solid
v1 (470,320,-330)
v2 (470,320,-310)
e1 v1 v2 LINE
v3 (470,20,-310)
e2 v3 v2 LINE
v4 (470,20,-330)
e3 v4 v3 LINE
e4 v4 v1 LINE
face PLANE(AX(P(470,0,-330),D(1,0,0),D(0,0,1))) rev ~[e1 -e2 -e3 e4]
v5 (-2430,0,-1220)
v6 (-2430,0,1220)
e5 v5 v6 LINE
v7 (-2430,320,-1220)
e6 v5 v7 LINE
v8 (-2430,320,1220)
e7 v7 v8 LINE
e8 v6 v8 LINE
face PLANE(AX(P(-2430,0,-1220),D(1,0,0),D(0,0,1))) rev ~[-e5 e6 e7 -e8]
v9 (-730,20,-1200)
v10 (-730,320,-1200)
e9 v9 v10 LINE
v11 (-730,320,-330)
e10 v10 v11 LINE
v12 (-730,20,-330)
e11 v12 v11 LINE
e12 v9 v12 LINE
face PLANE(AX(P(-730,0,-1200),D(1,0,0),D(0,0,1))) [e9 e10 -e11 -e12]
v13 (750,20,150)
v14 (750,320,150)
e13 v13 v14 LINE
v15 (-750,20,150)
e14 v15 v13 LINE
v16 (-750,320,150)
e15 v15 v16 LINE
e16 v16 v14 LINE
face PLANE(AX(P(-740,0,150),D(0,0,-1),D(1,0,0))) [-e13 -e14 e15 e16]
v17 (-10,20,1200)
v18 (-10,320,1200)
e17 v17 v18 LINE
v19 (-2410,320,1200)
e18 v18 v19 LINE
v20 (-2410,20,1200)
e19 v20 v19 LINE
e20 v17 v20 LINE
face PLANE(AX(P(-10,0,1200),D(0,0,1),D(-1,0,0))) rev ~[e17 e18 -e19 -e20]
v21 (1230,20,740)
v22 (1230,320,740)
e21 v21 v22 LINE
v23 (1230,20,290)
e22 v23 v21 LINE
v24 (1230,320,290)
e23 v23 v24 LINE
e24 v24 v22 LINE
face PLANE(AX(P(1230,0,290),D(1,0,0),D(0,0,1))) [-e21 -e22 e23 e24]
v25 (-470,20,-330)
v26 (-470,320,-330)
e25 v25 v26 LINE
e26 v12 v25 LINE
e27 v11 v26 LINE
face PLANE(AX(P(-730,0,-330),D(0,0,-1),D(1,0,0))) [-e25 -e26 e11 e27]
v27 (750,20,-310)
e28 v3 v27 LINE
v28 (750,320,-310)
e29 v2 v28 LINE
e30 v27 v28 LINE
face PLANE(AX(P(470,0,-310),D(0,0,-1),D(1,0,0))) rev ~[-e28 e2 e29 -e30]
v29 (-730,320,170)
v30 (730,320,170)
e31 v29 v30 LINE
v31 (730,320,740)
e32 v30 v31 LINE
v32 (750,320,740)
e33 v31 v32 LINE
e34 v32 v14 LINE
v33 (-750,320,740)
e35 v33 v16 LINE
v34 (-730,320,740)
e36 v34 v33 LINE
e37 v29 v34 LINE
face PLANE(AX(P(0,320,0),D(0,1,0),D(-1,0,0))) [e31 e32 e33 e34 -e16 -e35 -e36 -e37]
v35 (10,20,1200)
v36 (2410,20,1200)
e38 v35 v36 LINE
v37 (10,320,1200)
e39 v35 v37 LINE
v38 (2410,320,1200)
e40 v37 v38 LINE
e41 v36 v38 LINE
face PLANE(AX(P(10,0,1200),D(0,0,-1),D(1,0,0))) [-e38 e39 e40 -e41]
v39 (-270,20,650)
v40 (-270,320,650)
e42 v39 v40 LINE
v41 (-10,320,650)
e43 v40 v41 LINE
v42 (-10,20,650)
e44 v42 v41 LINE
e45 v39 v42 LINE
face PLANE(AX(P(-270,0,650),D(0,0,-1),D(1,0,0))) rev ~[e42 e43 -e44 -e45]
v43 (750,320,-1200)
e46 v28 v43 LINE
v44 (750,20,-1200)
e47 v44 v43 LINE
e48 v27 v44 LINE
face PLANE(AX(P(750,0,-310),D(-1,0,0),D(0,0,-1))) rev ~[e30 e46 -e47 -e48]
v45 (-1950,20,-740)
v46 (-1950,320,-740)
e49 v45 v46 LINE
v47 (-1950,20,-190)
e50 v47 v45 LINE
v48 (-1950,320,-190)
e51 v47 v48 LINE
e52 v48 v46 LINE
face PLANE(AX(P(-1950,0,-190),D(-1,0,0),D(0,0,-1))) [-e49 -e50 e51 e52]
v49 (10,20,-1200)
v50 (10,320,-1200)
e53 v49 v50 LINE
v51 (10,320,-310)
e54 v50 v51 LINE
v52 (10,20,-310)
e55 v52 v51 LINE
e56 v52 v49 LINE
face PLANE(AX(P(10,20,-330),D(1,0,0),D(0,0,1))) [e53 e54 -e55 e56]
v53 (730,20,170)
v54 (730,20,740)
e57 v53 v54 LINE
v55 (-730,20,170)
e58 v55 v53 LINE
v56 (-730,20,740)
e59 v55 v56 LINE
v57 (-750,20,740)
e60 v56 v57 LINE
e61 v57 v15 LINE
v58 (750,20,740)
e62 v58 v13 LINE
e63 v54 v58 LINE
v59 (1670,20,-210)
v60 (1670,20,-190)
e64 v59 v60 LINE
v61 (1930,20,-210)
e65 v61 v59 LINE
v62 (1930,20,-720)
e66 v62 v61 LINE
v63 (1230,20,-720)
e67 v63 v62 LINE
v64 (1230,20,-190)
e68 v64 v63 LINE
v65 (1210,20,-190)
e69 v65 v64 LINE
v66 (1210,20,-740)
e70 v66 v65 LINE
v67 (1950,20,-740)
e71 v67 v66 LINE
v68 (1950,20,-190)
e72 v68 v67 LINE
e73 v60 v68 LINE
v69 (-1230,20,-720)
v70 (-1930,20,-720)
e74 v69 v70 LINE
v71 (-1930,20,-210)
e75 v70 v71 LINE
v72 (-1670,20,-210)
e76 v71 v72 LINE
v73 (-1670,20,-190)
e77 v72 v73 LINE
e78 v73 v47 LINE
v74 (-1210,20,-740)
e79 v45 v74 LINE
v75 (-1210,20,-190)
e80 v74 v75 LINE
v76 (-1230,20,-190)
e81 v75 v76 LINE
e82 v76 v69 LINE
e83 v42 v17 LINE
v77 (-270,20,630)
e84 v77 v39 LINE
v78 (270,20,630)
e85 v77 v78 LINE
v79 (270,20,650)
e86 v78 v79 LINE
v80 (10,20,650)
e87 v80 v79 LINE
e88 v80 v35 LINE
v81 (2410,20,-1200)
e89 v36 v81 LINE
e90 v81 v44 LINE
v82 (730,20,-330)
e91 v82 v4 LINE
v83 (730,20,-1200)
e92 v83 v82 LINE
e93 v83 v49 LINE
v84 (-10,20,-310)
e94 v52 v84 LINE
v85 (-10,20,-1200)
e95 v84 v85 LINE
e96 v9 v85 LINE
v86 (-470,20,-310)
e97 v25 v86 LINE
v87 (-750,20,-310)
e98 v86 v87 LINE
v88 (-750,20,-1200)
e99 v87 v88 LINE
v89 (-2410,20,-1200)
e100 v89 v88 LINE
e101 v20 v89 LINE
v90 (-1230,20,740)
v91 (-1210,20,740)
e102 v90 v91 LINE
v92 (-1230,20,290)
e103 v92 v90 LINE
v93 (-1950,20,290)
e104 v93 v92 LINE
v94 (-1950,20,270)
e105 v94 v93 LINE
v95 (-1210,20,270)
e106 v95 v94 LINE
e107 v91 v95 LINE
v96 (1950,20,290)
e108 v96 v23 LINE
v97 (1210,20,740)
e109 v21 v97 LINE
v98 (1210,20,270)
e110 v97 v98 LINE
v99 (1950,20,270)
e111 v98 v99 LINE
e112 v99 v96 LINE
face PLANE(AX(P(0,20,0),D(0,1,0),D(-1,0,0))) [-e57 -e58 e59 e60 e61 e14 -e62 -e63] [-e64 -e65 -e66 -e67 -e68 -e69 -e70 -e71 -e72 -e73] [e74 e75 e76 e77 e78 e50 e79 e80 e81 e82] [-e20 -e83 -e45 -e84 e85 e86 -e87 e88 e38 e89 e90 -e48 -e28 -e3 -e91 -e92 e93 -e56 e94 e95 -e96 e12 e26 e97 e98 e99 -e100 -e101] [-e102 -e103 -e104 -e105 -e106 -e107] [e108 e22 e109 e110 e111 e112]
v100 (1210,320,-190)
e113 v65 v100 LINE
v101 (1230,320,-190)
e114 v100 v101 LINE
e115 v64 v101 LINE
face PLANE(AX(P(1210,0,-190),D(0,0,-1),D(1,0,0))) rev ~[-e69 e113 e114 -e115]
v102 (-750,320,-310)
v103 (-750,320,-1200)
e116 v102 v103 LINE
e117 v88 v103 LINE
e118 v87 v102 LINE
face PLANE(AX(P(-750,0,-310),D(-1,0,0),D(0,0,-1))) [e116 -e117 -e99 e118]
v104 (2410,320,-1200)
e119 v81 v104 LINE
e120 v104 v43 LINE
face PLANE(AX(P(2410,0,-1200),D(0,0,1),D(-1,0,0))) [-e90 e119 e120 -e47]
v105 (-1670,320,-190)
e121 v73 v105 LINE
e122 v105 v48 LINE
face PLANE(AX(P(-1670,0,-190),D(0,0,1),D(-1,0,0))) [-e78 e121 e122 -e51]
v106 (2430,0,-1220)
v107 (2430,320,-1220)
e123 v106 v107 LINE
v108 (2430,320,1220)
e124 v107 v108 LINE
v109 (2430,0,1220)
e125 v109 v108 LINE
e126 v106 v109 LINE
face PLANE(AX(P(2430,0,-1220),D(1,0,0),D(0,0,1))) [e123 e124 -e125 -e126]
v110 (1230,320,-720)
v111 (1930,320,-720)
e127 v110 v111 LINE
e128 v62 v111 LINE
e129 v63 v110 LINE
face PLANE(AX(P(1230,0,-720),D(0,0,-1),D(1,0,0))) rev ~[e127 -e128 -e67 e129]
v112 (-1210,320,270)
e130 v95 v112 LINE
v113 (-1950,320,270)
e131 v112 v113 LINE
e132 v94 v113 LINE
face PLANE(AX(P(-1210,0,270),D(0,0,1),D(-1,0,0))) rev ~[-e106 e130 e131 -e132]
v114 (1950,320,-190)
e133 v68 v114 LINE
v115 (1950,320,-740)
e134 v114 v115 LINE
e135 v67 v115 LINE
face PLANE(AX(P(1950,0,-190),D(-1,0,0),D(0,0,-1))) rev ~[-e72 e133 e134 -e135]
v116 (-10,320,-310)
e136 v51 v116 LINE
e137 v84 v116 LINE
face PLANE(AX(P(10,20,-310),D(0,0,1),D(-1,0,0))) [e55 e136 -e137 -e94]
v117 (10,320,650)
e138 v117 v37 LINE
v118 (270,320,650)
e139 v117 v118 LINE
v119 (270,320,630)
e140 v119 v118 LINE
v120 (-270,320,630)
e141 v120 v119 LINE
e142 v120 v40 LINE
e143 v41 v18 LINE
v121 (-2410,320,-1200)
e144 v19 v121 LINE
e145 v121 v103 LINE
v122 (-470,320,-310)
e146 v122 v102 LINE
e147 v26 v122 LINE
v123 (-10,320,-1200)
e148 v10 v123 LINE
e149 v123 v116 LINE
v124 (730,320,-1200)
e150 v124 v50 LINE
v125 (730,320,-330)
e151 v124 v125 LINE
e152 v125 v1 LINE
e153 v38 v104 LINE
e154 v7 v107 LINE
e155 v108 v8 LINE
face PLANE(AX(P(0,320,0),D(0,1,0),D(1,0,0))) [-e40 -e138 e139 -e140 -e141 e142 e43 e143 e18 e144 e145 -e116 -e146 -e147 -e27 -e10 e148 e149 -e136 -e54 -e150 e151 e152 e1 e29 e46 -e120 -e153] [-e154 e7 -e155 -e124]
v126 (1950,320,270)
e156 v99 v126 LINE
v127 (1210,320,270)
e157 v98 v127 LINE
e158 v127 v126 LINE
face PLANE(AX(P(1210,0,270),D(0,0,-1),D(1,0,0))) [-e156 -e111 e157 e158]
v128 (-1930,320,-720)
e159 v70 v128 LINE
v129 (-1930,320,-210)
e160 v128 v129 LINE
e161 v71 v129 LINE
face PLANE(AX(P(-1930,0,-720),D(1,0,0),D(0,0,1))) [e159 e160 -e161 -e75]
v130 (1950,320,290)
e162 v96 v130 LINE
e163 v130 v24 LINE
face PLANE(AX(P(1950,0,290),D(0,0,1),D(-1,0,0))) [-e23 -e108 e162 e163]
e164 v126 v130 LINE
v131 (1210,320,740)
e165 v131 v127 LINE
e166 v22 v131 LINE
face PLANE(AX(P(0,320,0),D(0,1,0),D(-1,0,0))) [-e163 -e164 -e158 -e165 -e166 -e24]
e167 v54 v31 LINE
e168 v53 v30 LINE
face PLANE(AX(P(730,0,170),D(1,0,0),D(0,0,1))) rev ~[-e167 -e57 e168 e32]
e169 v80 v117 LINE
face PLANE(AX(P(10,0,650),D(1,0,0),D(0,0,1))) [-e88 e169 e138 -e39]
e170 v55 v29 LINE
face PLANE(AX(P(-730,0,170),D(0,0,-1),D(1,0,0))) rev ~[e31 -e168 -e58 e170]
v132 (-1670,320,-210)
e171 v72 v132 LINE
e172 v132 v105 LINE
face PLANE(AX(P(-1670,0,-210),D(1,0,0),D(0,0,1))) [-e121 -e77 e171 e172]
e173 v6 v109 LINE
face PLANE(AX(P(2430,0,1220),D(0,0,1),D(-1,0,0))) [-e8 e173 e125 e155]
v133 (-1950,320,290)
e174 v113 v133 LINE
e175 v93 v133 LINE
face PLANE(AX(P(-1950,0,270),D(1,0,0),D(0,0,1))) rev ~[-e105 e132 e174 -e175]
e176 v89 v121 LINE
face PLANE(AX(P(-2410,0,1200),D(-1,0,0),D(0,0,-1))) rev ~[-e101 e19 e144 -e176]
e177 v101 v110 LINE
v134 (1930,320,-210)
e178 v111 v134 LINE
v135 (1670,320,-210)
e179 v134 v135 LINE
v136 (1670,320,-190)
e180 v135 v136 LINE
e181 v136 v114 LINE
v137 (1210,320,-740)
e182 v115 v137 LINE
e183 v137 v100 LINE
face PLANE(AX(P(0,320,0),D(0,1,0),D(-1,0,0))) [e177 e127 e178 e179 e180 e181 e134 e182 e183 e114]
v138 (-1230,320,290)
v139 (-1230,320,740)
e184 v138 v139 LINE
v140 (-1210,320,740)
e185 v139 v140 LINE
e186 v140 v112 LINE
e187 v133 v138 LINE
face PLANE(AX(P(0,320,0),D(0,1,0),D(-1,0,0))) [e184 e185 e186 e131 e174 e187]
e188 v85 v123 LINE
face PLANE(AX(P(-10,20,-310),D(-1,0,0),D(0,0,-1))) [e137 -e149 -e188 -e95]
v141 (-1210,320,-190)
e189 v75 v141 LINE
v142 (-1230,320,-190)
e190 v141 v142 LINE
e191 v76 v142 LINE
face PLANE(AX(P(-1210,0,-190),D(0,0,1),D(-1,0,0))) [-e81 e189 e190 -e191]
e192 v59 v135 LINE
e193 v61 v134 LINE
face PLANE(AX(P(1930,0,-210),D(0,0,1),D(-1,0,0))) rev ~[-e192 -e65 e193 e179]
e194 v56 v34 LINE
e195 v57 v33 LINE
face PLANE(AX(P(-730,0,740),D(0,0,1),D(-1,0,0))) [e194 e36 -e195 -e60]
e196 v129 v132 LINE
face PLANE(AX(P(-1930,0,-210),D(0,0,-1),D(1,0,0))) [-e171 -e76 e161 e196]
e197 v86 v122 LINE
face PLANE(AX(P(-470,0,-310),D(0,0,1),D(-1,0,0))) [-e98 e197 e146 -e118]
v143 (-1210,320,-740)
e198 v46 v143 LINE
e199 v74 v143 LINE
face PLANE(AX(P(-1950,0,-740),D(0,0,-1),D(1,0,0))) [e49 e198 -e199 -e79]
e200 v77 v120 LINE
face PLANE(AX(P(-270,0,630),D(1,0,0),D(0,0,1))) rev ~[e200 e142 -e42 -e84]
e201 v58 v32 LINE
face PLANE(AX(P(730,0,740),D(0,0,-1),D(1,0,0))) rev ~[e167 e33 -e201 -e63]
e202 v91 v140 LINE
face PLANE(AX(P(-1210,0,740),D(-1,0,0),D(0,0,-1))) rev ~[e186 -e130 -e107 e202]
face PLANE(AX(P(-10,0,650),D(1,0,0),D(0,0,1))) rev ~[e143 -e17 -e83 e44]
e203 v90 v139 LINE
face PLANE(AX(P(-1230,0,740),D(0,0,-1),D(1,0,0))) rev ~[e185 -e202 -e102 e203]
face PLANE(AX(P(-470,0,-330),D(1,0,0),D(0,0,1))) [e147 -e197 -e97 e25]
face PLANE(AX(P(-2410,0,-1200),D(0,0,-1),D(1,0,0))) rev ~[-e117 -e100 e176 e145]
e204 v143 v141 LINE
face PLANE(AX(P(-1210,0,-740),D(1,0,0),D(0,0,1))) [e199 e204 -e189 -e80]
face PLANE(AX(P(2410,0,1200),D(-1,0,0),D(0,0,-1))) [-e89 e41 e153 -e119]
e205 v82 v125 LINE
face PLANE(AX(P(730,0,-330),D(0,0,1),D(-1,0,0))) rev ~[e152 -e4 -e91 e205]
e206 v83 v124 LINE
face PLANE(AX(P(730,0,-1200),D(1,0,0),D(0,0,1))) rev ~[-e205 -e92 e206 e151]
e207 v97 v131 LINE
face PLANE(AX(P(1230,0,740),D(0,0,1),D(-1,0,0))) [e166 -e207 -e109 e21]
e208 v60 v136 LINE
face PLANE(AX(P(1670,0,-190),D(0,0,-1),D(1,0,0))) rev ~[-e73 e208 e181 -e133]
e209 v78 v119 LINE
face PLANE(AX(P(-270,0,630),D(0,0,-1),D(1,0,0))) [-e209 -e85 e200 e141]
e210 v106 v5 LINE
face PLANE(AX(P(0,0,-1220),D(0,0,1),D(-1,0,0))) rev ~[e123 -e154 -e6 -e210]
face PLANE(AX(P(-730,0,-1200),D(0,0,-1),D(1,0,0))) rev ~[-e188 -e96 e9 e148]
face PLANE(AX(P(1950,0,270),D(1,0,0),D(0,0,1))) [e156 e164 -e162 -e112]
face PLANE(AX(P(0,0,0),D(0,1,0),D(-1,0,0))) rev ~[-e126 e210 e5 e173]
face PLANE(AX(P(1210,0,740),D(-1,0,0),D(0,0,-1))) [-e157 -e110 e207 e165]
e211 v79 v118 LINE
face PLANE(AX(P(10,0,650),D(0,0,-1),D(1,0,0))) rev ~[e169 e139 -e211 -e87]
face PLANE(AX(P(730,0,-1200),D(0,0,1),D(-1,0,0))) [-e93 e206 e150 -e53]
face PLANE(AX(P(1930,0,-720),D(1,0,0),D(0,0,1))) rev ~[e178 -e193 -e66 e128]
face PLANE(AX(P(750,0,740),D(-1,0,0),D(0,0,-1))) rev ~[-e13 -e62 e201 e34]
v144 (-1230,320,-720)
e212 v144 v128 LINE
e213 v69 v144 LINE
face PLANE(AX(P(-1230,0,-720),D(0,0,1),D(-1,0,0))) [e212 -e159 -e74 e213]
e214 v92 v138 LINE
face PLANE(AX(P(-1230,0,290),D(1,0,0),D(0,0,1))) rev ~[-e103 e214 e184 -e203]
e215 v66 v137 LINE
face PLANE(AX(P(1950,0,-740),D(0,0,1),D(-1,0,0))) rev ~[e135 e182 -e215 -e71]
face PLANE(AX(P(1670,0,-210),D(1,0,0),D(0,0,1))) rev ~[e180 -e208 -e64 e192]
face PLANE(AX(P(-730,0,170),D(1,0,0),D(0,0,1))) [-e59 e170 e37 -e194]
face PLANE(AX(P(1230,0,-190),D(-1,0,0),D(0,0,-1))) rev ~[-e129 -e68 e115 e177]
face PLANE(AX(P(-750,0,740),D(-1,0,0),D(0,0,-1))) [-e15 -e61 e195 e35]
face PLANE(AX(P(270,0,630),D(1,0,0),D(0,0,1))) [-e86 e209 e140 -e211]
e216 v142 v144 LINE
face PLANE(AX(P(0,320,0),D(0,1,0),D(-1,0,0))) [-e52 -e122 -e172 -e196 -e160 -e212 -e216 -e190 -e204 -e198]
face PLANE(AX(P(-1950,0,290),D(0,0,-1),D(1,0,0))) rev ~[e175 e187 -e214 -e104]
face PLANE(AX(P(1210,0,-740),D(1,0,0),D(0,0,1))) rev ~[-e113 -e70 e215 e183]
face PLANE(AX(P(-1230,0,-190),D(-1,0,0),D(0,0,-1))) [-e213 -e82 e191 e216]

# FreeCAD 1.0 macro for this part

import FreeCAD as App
import Part
import Sketcher
Q = App.Units.Quantity

doc = App.newDocument("Part")
body = doc.addObject("PartDesign::Body", "Body")

sketch1 = doc.addObject("Sketcher::SketchObject", "Sketch")
body.addObject(sketch1)
sketch1.AttachmentSupport = (doc.XZ_Plane, [""])
sketch1.MapMode = "FlatFace"
sketch1.addGeometry([
    Part.LineSegment(App.Vector(-2410, -1200, 0), App.Vector(-2410, 1200, 0)),
    Part.LineSegment(App.Vector(-2410, 1200, 0), App.Vector(-10, 1200, 0)),
    Part.LineSegment(App.Vector(-10, 1200, 0), App.Vector(-10, 650, 0)),
    Part.LineSegment(App.Vector(-10, 650, 0), App.Vector(-270, 650, 0)),
    Part.LineSegment(App.Vector(-270, 650, 0), App.Vector(-270, 630, 0)),
    Part.LineSegment(App.Vector(-270, 630, 0), App.Vector(270, 630, 0)),
    Part.LineSegment(App.Vector(270, 630, 0), App.Vector(270, 650, 0)),
    Part.LineSegment(App.Vector(270, 650, 0), App.Vector(10, 650, 0)),
    Part.LineSegment(App.Vector(10, 650, 0), App.Vector(10, 1200, 0)),
    Part.LineSegment(App.Vector(10, 1200, 0), App.Vector(2410, 1200, 0)),
    Part.LineSegment(App.Vector(2410, 1200, 0), App.Vector(2410, -1200, 0)),
    Part.LineSegment(App.Vector(2410, -1200, 0), App.Vector(750, -1200, 0)),
    Part.LineSegment(App.Vector(750, -1200, 0), App.Vector(750, -310, 0)),
    Part.LineSegment(App.Vector(750, -310, 0), App.Vector(470, -310, 0)),
    Part.LineSegment(App.Vector(470, -310, 0), App.Vector(470, -330, 0)),
    Part.LineSegment(App.Vector(470, -330, 0), App.Vector(730, -330, 0)),
    Part.LineSegment(App.Vector(730, -330, 0), App.Vector(730, -1200, 0)),
    Part.LineSegment(App.Vector(730, -1200, 0), App.Vector(10, -1200, 0)),
    Part.LineSegment(App.Vector(10, -1200, 0), App.Vector(10, -330, 0)),
    Part.LineSegment(App.Vector(10, -330, 0), App.Vector(-10, -330, 0)),
    Part.LineSegment(App.Vector(-10, -330, 0), App.Vector(-10, -1200, 0)),
    Part.LineSegment(App.Vector(-10, -1200, 0), App.Vector(-730, -1200, 0)),
    Part.LineSegment(App.Vector(-730, -1200, 0), App.Vector(-730, -330, 0)),
    Part.LineSegment(App.Vector(-730, -330, 0), App.Vector(-470, -330, 0)),
    Part.LineSegment(App.Vector(-470, -330, 0), App.Vector(-470, -310, 0)),
    Part.LineSegment(App.Vector(-470, -310, 0), App.Vector(-750, -310, 0)),
    Part.LineSegment(App.Vector(-750, -310, 0), App.Vector(-750, -1200, 0)),
    Part.LineSegment(App.Vector(-750, -1200, 0), App.Vector(-2410, -1200, 0)),
    Part.LineSegment(App.Vector(1950, -740, 0), App.Vector(1950, -190, 0)),
    Part.LineSegment(App.Vector(1950, -190, 0), App.Vector(1670, -190, 0)),
    Part.LineSegment(App.Vector(1670, -190, 0), App.Vector(1670, -210, 0)),
    Part.LineSegment(App.Vector(1670, -210, 0), App.Vector(1930, -210, 0)),
    Part.LineSegment(App.Vector(1930, -210, 0), App.Vector(1930, -720, 0)),
    Part.LineSegment(App.Vector(1930, -720, 0), App.Vector(1230, -720, 0)),
    Part.LineSegment(App.Vector(1230, -720, 0), App.Vector(1230, -190, 0)),
    Part.LineSegment(App.Vector(1230, -190, 0), App.Vector(1210, -190, 0)),
    Part.LineSegment(App.Vector(1210, -190, 0), App.Vector(1210, -740, 0)),
    Part.LineSegment(App.Vector(1210, -740, 0), App.Vector(1950, -740, 0)),
    Part.LineSegment(App.Vector(-1670, -190, 0), App.Vector(-1950, -190, 0)),
    Part.LineSegment(App.Vector(-1950, -190, 0), App.Vector(-1950, -740, 0)),
    Part.LineSegment(App.Vector(-1950, -740, 0), App.Vector(-1210, -740, 0)),
    Part.LineSegment(App.Vector(-1210, -740, 0), App.Vector(-1210, -190, 0)),
    Part.LineSegment(App.Vector(-1210, -190, 0), App.Vector(-1230, -190, 0)),
    Part.LineSegment(App.Vector(-1230, -190, 0), App.Vector(-1230, -720, 0)),
    Part.LineSegment(App.Vector(-1230, -720, 0), App.Vector(-1930, -720, 0)),
    Part.LineSegment(App.Vector(-1930, -720, 0), App.Vector(-1930, -210, 0)),
    Part.LineSegment(App.Vector(-1930, -210, 0), App.Vector(-1670, -210, 0)),
    Part.LineSegment(App.Vector(-1670, -210, 0), App.Vector(-1670, -190, 0)),
    Part.LineSegment(App.Vector(1230, 740, 0), App.Vector(1210, 740, 0)),
    Part.LineSegment(App.Vector(1210, 740, 0), App.Vector(1210, 270, 0)),
    Part.LineSegment(App.Vector(1210, 270, 0), App.Vector(1950, 270, 0)),
    Part.LineSegment(App.Vector(1950, 270, 0), App.Vector(1950, 290, 0)),
    Part.LineSegment(App.Vector(1950, 290, 0), App.Vector(1230, 290, 0)),
    Part.LineSegment(App.Vector(1230, 290, 0), App.Vector(1230, 740, 0)),
    Part.LineSegment(App.Vector(-750, 150, 0), App.Vector(750, 150, 0)),
    Part.LineSegment(App.Vector(750, 150, 0), App.Vector(750, 740, 0)),
    Part.LineSegment(App.Vector(750, 740, 0), App.Vector(730, 740, 0)),
    Part.LineSegment(App.Vector(730, 740, 0), App.Vector(730, 170, 0)),
    Part.LineSegment(App.Vector(730, 170, 0), App.Vector(-730, 170, 0)),
    Part.LineSegment(App.Vector(-730, 170, 0), App.Vector(-730, 740, 0)),
    Part.LineSegment(App.Vector(-730, 740, 0), App.Vector(-750, 740, 0)),
    Part.LineSegment(App.Vector(-750, 740, 0), App.Vector(-750, 150, 0)),
    Part.LineSegment(App.Vector(-1210, 270, 0), App.Vector(-1210, 740, 0)),
    Part.LineSegment(App.Vector(-1210, 740, 0), App.Vector(-1230, 740, 0)),
    Part.LineSegment(App.Vector(-1230, 740, 0), App.Vector(-1230, 290, 0)),
    Part.LineSegment(App.Vector(-1230, 290, 0), App.Vector(-1950, 290, 0)),
    Part.LineSegment(App.Vector(-1950, 290, 0), App.Vector(-1950, 270, 0)),
    Part.LineSegment(App.Vector(-1950, 270, 0), App.Vector(-1210, 270, 0)),
], False)
sketch1.addConstraint([
    Sketcher.Constraint("Coincident", 0, 2, 1, 1),
    Sketcher.Constraint("Coincident", 1, 2, 2, 1),
    Sketcher.Constraint("Coincident", 2, 2, 3, 1),
    Sketcher.Constraint("Coincident", 3, 2, 4, 1),
    Sketcher.Constraint("Coincident", 4, 2, 5, 1),
    Sketcher.Constraint("Coincident", 5, 2, 6, 1),
    Sketcher.Constraint("Coincident", 6, 2, 7, 1),
    Sketcher.Constraint("Coincident", 7, 2, 8, 1),
    Sketcher.Constraint("Coincident", 8, 2, 9, 1),
    Sketcher.Constraint("Coincident", 9, 2, 10, 1),
    Sketcher.Constraint("Coincident", 10, 2, 11, 1),
    Sketcher.Constraint("Coincident", 11, 2, 12, 1),
    Sketcher.Constraint("Coincident", 12, 2, 13, 1),
    Sketcher.Constraint("Coincident", 13, 2, 14, 1),
    Sketcher.Constraint("Coincident", 14, 2, 15, 1),
    Sketcher.Constraint("Coincident", 15, 2, 16, 1),
    Sketcher.Constraint("Coincident", 16, 2, 17, 1),
    Sketcher.Constraint("Coincident", 17, 2, 18, 1),
    Sketcher.Constraint("Coincident", 18, 2, 19, 1),
    Sketcher.Constraint("Coincident", 19, 2, 20, 1),
    Sketcher.Constraint("Coincident", 20, 2, 21, 1),
    Sketcher.Constraint("Coincident", 21, 2, 22, 1),
    Sketcher.Constraint("Coincident", 22, 2, 23, 1),
    Sketcher.Constraint("Coincident", 23, 2, 24, 1),
    Sketcher.Constraint("Coincident", 24, 2, 25, 1),
    Sketcher.Constraint("Coincident", 25, 2, 26, 1),
    Sketcher.Constraint("Coincident", 26, 2, 27, 1),
    Sketcher.Constraint("Coincident", 27, 2, 0, 1),
    Sketcher.Constraint("Coincident", 28, 2, 29, 1),
    Sketcher.Constraint("Coincident", 29, 2, 30, 1),
    Sketcher.Constraint("Coincident", 30, 2, 31, 1),
    Sketcher.Constraint("Coincident", 31, 2, 32, 1),
    Sketcher.Constraint("Coincident", 32, 2, 33, 1),
    Sketcher.Constraint("Coincident", 33, 2, 34, 1),
    Sketcher.Constraint("Coincident", 34, 2, 35, 1),
    Sketcher.Constraint("Coincident", 35, 2, 36, 1),
    Sketcher.Constraint("Coincident", 36, 2, 37, 1),
    Sketcher.Constraint("Coincident", 37, 2, 28, 1),
    Sketcher.Constraint("Coincident", 38, 2, 39, 1),
    Sketcher.Constraint("Coincident", 39, 2, 40, 1),
    Sketcher.Constraint("Coincident", 40, 2, 41, 1),
    Sketcher.Constraint("Coincident", 41, 2, 42, 1),
    Sketcher.Constraint("Coincident", 42, 2, 43, 1),
    Sketcher.Constraint("Coincident", 43, 2, 44, 1),
    Sketcher.Constraint("Coincident", 44, 2, 45, 1),
    Sketcher.Constraint("Coincident", 45, 2, 46, 1),
    Sketcher.Constraint("Coincident", 46, 2, 47, 1),
    Sketcher.Constraint("Coincident", 47, 2, 38, 1),
    Sketcher.Constraint("Coincident", 48, 2, 49, 1),
    Sketcher.Constraint("Coincident", 49, 2, 50, 1),
    Sketcher.Constraint("Coincident", 50, 2, 51, 1),
    Sketcher.Constraint("Coincident", 51, 2, 52, 1),
    Sketcher.Constraint("Coincident", 52, 2, 53, 1),
    Sketcher.Constraint("Coincident", 53, 2, 48, 1),
    Sketcher.Constraint("Coincident", 54, 2, 55, 1),
    Sketcher.Constraint("Coincident", 55, 2, 56, 1),
    Sketcher.Constraint("Coincident", 56, 2, 57, 1),
    Sketcher.Constraint("Coincident", 57, 2, 58, 1),
    Sketcher.Constraint("Coincident", 58, 2, 59, 1),
    Sketcher.Constraint("Coincident", 59, 2, 60, 1),
    Sketcher.Constraint("Coincident", 60, 2, 61, 1),
    Sketcher.Constraint("Coincident", 61, 2, 54, 1),
    Sketcher.Constraint("Coincident", 62, 2, 63, 1),
    Sketcher.Constraint("Coincident", 63, 2, 64, 1),
    Sketcher.Constraint("Coincident", 64, 2, 65, 1),
    Sketcher.Constraint("Coincident", 65, 2, 66, 1),
    Sketcher.Constraint("Coincident", 66, 2, 67, 1),
    Sketcher.Constraint("Coincident", 67, 2, 62, 1),
    Sketcher.Constraint("Vertical", 0),
    Sketcher.Constraint("Horizontal", 1),
    Sketcher.Constraint("Vertical", 2),
    Sketcher.Constraint("Horizontal", 3),
    Sketcher.Constraint("Vertical", 4),
    Sketcher.Constraint("Horizontal", 5),
    Sketcher.Constraint("Vertical", 6),
    Sketcher.Constraint("Horizontal", 7),
    Sketcher.Constraint("Vertical", 8),
    Sketcher.Constraint("Horizontal", 9),
    Sketcher.Constraint("Vertical", 10),
    Sketcher.Constraint("Horizontal", 11),
    Sketcher.Constraint("Vertical", 12),
    Sketcher.Constraint("Horizontal", 13),
    Sketcher.Constraint("Vertical", 14),
    Sketcher.Constraint("Horizontal", 15),
    Sketcher.Constraint("Vertical", 16),
    Sketcher.Constraint("Horizontal", 17),
    Sketcher.Constraint("Vertical", 18),
    Sketcher.Constraint("Horizontal", 19),
    Sketcher.Constraint("Vertical", 20),
    Sketcher.Constraint("Horizontal", 21),
    Sketcher.Constraint("Vertical", 22),
    Sketcher.Constraint("Horizontal", 23),
    Sketcher.Constraint("Vertical", 24),
    Sketcher.Constraint("Horizontal", 25),
    Sketcher.Constraint("Vertical", 26),
    Sketcher.Constraint("Horizontal", 27),
    Sketcher.Constraint("Vertical", 28),
    Sketcher.Constraint("Horizontal", 29),
    Sketcher.Constraint("Vertical", 30),
    Sketcher.Constraint("Horizontal", 31),
    Sketcher.Constraint("Vertical", 32),
    Sketcher.Constraint("Horizontal", 33),
    Sketcher.Constraint("Vertical", 34),
    Sketcher.Constraint("Horizontal", 35),
    Sketcher.Constraint("Vertical", 36),
    Sketcher.Constraint("Horizontal", 37),
    Sketcher.Constraint("Horizontal", 38),
    Sketcher.Constraint("Vertical", 39),
    Sketcher.Constraint("Horizontal", 40),
    Sketcher.Constraint("Vertical", 41),
    Sketcher.Constraint("Horizontal", 42),
    Sketcher.Constraint("Vertical", 43),
    Sketcher.Constraint("Horizontal", 44),
    Sketcher.Constraint("Vertical", 45),
    Sketcher.Constraint("Horizontal", 46),
    Sketcher.Constraint("Vertical", 47),
    Sketcher.Constraint("Horizontal", 48),
    Sketcher.Constraint("Vertical", 49),
    Sketcher.Constraint("Horizontal", 50),
    Sketcher.Constraint("Vertical", 51),
    Sketcher.Constraint("Horizontal", 52),
    Sketcher.Constraint("Vertical", 53),
    Sketcher.Constraint("Horizontal", 54),
    Sketcher.Constraint("Vertical", 55),
    Sketcher.Constraint("Horizontal", 56),
    Sketcher.Constraint("Vertical", 57),
    Sketcher.Constraint("Horizontal", 58),
    Sketcher.Constraint("Vertical", 59),
    Sketcher.Constraint("Horizontal", 60),
    Sketcher.Constraint("Vertical", 61),
    Sketcher.Constraint("Vertical", 62),
    Sketcher.Constraint("Horizontal", 63),
    Sketcher.Constraint("Vertical", 64),
    Sketcher.Constraint("Horizontal", 65),
    Sketcher.Constraint("Vertical", 66),
    Sketcher.Constraint("Horizontal", 67),
    Sketcher.Constraint("Symmetric", 0, 2, 10, 2, -1, 1),
    Sketcher.Constraint("Symmetric", 1, 2, 17, 2, -1, 1),
    Sketcher.Constraint("Symmetric", 8, 2, 20, 2, -1, 1),
    Sketcher.Constraint("Symmetric", 40, 2, 48, 2, -1, 1),
    Sketcher.Constraint("Symmetric", 36, 2, 62, 2, -1, 1),
    Sketcher.Constraint("Symmetric", 3, 2, 6, 2, -2),
    Sketcher.Constraint("Symmetric", 1, 2, 8, 2, -2),
    Sketcher.Constraint("Symmetric", 15, 2, 22, 2, -2),
    Sketcher.Constraint("Symmetric", 13, 2, 24, 2, -2),
    Sketcher.Constraint("Symmetric", 11, 2, 26, 2, -2),
    Sketcher.Constraint("Symmetric", 28, 2, 38, 2, -2),
    Sketcher.Constraint("Symmetric", 36, 2, 40, 2, -2),
    Sketcher.Constraint("Symmetric", 34, 2, 42, 2, -2),
    Sketcher.Constraint("Symmetric", 32, 2, 44, 2, -2),
    Sketcher.Constraint("Symmetric", 30, 2, 46, 2, -2),
    Sketcher.Constraint("Symmetric", 56, 2, 59, 2, -2),
    Sketcher.Constraint("Symmetric", 52, 2, 64, 2, -2),
    Sketcher.Constraint("Symmetric", 50, 2, 66, 2, -2),
    Sketcher.Constraint("Horizontal", 15, 2, 18, 2),
    Sketcher.Constraint("Horizontal", 29, 2, 34, 2),
    Sketcher.Constraint("Horizontal", 53, 2, 55, 2),
    Sketcher.Constraint("Vertical", 37, 2, 50, 2),
    Sketcher.Constraint("Vertical", 34, 2, 52, 2),
    Sketcher.Constraint("Vertical", 12, 2, 54, 2),
    Sketcher.Constraint("Vertical", 16, 2, 56, 2),
    Sketcher.Constraint("Vertical", 26, 2, 60, 2),
    Sketcher.Constraint("Equal", 7, 15),
    Sketcher.Constraint("Equal", 25, 29),
    Sketcher.Constraint("Equal", 23, 31),
    Sketcher.Constraint("Equal", 19, 35),
    Sketcher.Constraint("Equal", 21, 52),
    Sketcher.Constraint("Equal", 48, 56),
    Sketcher.Constraint("Equal", 9, 0),
    Sketcher.Constraint("Equal", 63, 4),
    Sketcher.Constraint("Equal", 6, 14),
    Sketcher.Constraint("Equal", 8, 28),
    Sketcher.Constraint("Equal", 24, 30),
    Sketcher.Constraint("Equal", 47, 51),
    Sketcher.Constraint("DistanceX", 1, 1, 1, 2, Q("2400 mm")),
    Sketcher.Constraint("DistanceX", 3, 2, 3, 1, Q("260 mm")),
    Sketcher.Constraint("DistanceX", 5, 1, 5, 2, Q("540 mm")),
    Sketcher.Constraint("DistanceX", 11, 2, 11, 1, Q("1660 mm")),
    Sketcher.Constraint("DistanceY", 2, 2, 2, 1, Q("550 mm")),
    Sketcher.Constraint("DistanceY", 12, 1, 12, 2, Q("890 mm")),
    Sketcher.Constraint("DistanceY", 32, 2, 32, 1, Q("510 mm")),
    Sketcher.Constraint("DistanceY", 49, 2, 49, 1, Q("470 mm")),
    Sketcher.Constraint("DistanceY", 55, 1, 55, 2, Q("590 mm")),
    Sketcher.Constraint("DistanceY", 57, 2, 57, 1, Q("570 mm")),
    Sketcher.Constraint("DistanceY", 32, 2, -1, 1, Q("720 mm")),
    Sketcher.Constraint("DistanceX", -1, 1, 28, 2, Q("1950 mm")),
])
pad1 = doc.addObject("PartDesign::Pad", "Pad")
body.addObject(pad1)
pad1.Profile = sketch1
pad1.Length = 20
pad1.Reversed = True

sketch2 = doc.addObject("Sketcher::SketchObject", "Sketch001")
body.addObject(sketch2)
sketch2.AttachmentSupport = (doc.XZ_Plane, [""])
sketch2.MapMode = "FlatFace"
sketch2.addGeometry([
    Part.LineSegment(App.Vector(-2430, -1220, 0), App.Vector(-2430, 1220, 0)),
    Part.LineSegment(App.Vector(-2430, 1220, 0), App.Vector(2430, 1220, 0)),
    Part.LineSegment(App.Vector(2430, 1220, 0), App.Vector(2430, -1220, 0)),
    Part.LineSegment(App.Vector(2430, -1220, 0), App.Vector(-2430, -1220, 0)),
    Part.LineSegment(App.Vector(-10, 1200, 0), App.Vector(-2410, 1200, 0)),
    Part.LineSegment(App.Vector(-2410, 1200, 0), App.Vector(-2410, -1200, 0)),
    Part.LineSegment(App.Vector(-2410, -1200, 0), App.Vector(-750, -1200, 0)),
    Part.LineSegment(App.Vector(-750, -1200, 0), App.Vector(-750, -310, 0)),
    Part.LineSegment(App.Vector(-750, -310, 0), App.Vector(-470, -310, 0)),
    Part.LineSegment(App.Vector(-470, -310, 0), App.Vector(-470, -330, 0)),
    Part.LineSegment(App.Vector(-470, -330, 0), App.Vector(-730, -330, 0)),
    Part.LineSegment(App.Vector(-730, -330, 0), App.Vector(-730, -1200, 0)),
    Part.LineSegment(App.Vector(-730, -1200, 0), App.Vector(-10, -1200, 0)),
    Part.LineSegment(App.Vector(-10, -1200, 0), App.Vector(-10, -330, 0)),
    Part.LineSegment(App.Vector(-10, -330, 0), App.Vector(10, -330, 0)),
    Part.LineSegment(App.Vector(10, -330, 0), App.Vector(10, -1200, 0)),
    Part.LineSegment(App.Vector(10, -1200, 0), App.Vector(730, -1200, 0)),
    Part.LineSegment(App.Vector(730, -1200, 0), App.Vector(730, -330, 0)),
    Part.LineSegment(App.Vector(730, -330, 0), App.Vector(470, -330, 0)),
    Part.LineSegment(App.Vector(470, -330, 0), App.Vector(470, -310, 0)),
    Part.LineSegment(App.Vector(470, -310, 0), App.Vector(750, -310, 0)),
    Part.LineSegment(App.Vector(750, -310, 0), App.Vector(750, -1200, 0)),
    Part.LineSegment(App.Vector(750, -1200, 0), App.Vector(2410, -1200, 0)),
    Part.LineSegment(App.Vector(2410, -1200, 0), App.Vector(2410, 1200, 0)),
    Part.LineSegment(App.Vector(2410, 1200, 0), App.Vector(10, 1200, 0)),
    Part.LineSegment(App.Vector(10, 1200, 0), App.Vector(10, 650, 0)),
    Part.LineSegment(App.Vector(10, 650, 0), App.Vector(270, 650, 0)),
    Part.LineSegment(App.Vector(270, 650, 0), App.Vector(270, 630, 0)),
    Part.LineSegment(App.Vector(270, 630, 0), App.Vector(-270, 630, 0)),
    Part.LineSegment(App.Vector(-270, 630, 0), App.Vector(-270, 650, 0)),
    Part.LineSegment(App.Vector(-270, 650, 0), App.Vector(-10, 650, 0)),
    Part.LineSegment(App.Vector(-10, 650, 0), App.Vector(-10, 1200, 0)),
    Part.LineSegment(App.Vector(750, 150, 0), App.Vector(-750, 150, 0)),
    Part.LineSegment(App.Vector(-750, 150, 0), App.Vector(-750, 740, 0)),
    Part.LineSegment(App.Vector(-750, 740, 0), App.Vector(-730, 740, 0)),
    Part.LineSegment(App.Vector(-730, 740, 0), App.Vector(-730, 170, 0)),
    Part.LineSegment(App.Vector(-730, 170, 0), App.Vector(730, 170, 0)),
    Part.LineSegment(App.Vector(730, 170, 0), App.Vector(730, 740, 0)),
    Part.LineSegment(App.Vector(730, 740, 0), App.Vector(750, 740, 0)),
    Part.LineSegment(App.Vector(750, 740, 0), App.Vector(750, 150, 0)),
    Part.LineSegment(App.Vector(-1230, 740, 0), App.Vector(-1210, 740, 0)),
    Part.LineSegment(App.Vector(-1210, 740, 0), App.Vector(-1210, 270, 0)),
    Part.LineSegment(App.Vector(-1210, 270, 0), App.Vector(-1950, 270, 0)),
    Part.LineSegment(App.Vector(-1950, 270, 0), App.Vector(-1950, 290, 0)),
    Part.LineSegment(App.Vector(-1950, 290, 0), App.Vector(-1230, 290, 0)),
    Part.LineSegment(App.Vector(-1230, 290, 0), App.Vector(-1230, 740, 0)),
    Part.LineSegment(App.Vector(-1950, -740, 0), App.Vector(-1950, -190, 0)),
    Part.LineSegment(App.Vector(-1950, -190, 0), App.Vector(-1670, -190, 0)),
    Part.LineSegment(App.Vector(-1670, -190, 0), App.Vector(-1670, -210, 0)),
    Part.LineSegment(App.Vector(-1670, -210, 0), App.Vector(-1930, -210, 0)),
    Part.LineSegment(App.Vector(-1930, -210, 0), App.Vector(-1930, -720, 0)),
    Part.LineSegment(App.Vector(-1930, -720, 0), App.Vector(-1230, -720, 0)),
    Part.LineSegment(App.Vector(-1230, -720, 0), App.Vector(-1230, -190, 0)),
    Part.LineSegment(App.Vector(-1230, -190, 0), App.Vector(-1210, -190, 0)),
    Part.LineSegment(App.Vector(-1210, -190, 0), App.Vector(-1210, -740, 0)),
    Part.LineSegment(App.Vector(-1210, -740, 0), App.Vector(-1950, -740, 0)),
    Part.LineSegment(App.Vector(1210, 270, 0), App.Vector(1210, 740, 0)),
    Part.LineSegment(App.Vector(1210, 740, 0), App.Vector(1230, 740, 0)),
    Part.LineSegment(App.Vector(1230, 740, 0), App.Vector(1230, 290, 0)),
    Part.LineSegment(App.Vector(1230, 290, 0), App.Vector(1950, 290, 0)),
    Part.LineSegment(App.Vector(1950, 290, 0), App.Vector(1950, 270, 0)),
    Part.LineSegment(App.Vector(1950, 270, 0), App.Vector(1210, 270, 0)),
    Part.LineSegment(App.Vector(1670, -190, 0), App.Vector(1950, -190, 0)),
    Part.LineSegment(App.Vector(1950, -190, 0), App.Vector(1950, -740, 0)),
    Part.LineSegment(App.Vector(1950, -740, 0), App.Vector(1210, -740, 0)),
    Part.LineSegment(App.Vector(1210, -740, 0), App.Vector(1210, -190, 0)),
    Part.LineSegment(App.Vector(1210, -190, 0), App.Vector(1230, -190, 0)),
    Part.LineSegment(App.Vector(1230, -190, 0), App.Vector(1230, -720, 0)),
    Part.LineSegment(App.Vector(1230, -720, 0), App.Vector(1930, -720, 0)),
    Part.LineSegment(App.Vector(1930, -720, 0), App.Vector(1930, -210, 0)),
    Part.LineSegment(App.Vector(1930, -210, 0), App.Vector(1670, -210, 0)),
    Part.LineSegment(App.Vector(1670, -210, 0), App.Vector(1670, -190, 0)),
], False)
sketch2.addConstraint([
    Sketcher.Constraint("Coincident", 0, 2, 1, 1),
    Sketcher.Constraint("Coincident", 1, 2, 2, 1),
    Sketcher.Constraint("Coincident", 2, 2, 3, 1),
    Sketcher.Constraint("Coincident", 3, 2, 0, 1),
    Sketcher.Constraint("Coincident", 4, 2, 5, 1),
    Sketcher.Constraint("Coincident", 5, 2, 6, 1),
    Sketcher.Constraint("Coincident", 6, 2, 7, 1),
    Sketcher.Constraint("Coincident", 7, 2, 8, 1),
    Sketcher.Constraint("Coincident", 8, 2, 9, 1),
    Sketcher.Constraint("Coincident", 9, 2, 10, 1),
    Sketcher.Constraint("Coincident", 10, 2, 11, 1),
    Sketcher.Constraint("Coincident", 11, 2, 12, 1),
    Sketcher.Constraint("Coincident", 12, 2, 13, 1),
    Sketcher.Constraint("Coincident", 13, 2, 14, 1),
    Sketcher.Constraint("Coincident", 14, 2, 15, 1),
    Sketcher.Constraint("Coincident", 15, 2, 16, 1),
    Sketcher.Constraint("Coincident", 16, 2, 17, 1),
    Sketcher.Constraint("Coincident", 17, 2, 18, 1),
    Sketcher.Constraint("Coincident", 18, 2, 19, 1),
    Sketcher.Constraint("Coincident", 19, 2, 20, 1),
    Sketcher.Constraint("Coincident", 20, 2, 21, 1),
    Sketcher.Constraint("Coincident", 21, 2, 22, 1),
    Sketcher.Constraint("Coincident", 22, 2, 23, 1),
    Sketcher.Constraint("Coincident", 23, 2, 24, 1),
    Sketcher.Constraint("Coincident", 24, 2, 25, 1),
    Sketcher.Constraint("Coincident", 25, 2, 26, 1),
    Sketcher.Constraint("Coincident", 26, 2, 27, 1),
    Sketcher.Constraint("Coincident", 27, 2, 28, 1),
    Sketcher.Constraint("Coincident", 28, 2, 29, 1),
    Sketcher.Constraint("Coincident", 29, 2, 30, 1),
    Sketcher.Constraint("Coincident", 30, 2, 31, 1),
    Sketcher.Constraint("Coincident", 31, 2, 4, 1),
    Sketcher.Constraint("Coincident", 32, 2, 33, 1),
    Sketcher.Constraint("Coincident", 33, 2, 34, 1),
    Sketcher.Constraint("Coincident", 34, 2, 35, 1),
    Sketcher.Constraint("Coincident", 35, 2, 36, 1),
    Sketcher.Constraint("Coincident", 36, 2, 37, 1),
    Sketcher.Constraint("Coincident", 37, 2, 38, 1),
    Sketcher.Constraint("Coincident", 38, 2, 39, 1),
    Sketcher.Constraint("Coincident", 39, 2, 32, 1),
    Sketcher.Constraint("Coincident", 40, 2, 41, 1),
    Sketcher.Constraint("Coincident", 41, 2, 42, 1),
    Sketcher.Constraint("Coincident", 42, 2, 43, 1),
    Sketcher.Constraint("Coincident", 43, 2, 44, 1),
    Sketcher.Constraint("Coincident", 44, 2, 45, 1),
    Sketcher.Constraint("Coincident", 45, 2, 40, 1),
    Sketcher.Constraint("Coincident", 46, 2, 47, 1),
    Sketcher.Constraint("Coincident", 47, 2, 48, 1),
    Sketcher.Constraint("Coincident", 48, 2, 49, 1),
    Sketcher.Constraint("Coincident", 49, 2, 50, 1),
    Sketcher.Constraint("Coincident", 50, 2, 51, 1),
    Sketcher.Constraint("Coincident", 51, 2, 52, 1),
    Sketcher.Constraint("Coincident", 52, 2, 53, 1),
    Sketcher.Constraint("Coincident", 53, 2, 54, 1),
    Sketcher.Constraint("Coincident", 54, 2, 55, 1),
    Sketcher.Constraint("Coincident", 55, 2, 46, 1),
    Sketcher.Constraint("Coincident", 56, 2, 57, 1),
    Sketcher.Constraint("Coincident", 57, 2, 58, 1),
    Sketcher.Constraint("Coincident", 58, 2, 59, 1),
    Sketcher.Constraint("Coincident", 59, 2, 60, 1),
    Sketcher.Constraint("Coincident", 60, 2, 61, 1),
    Sketcher.Constraint("Coincident", 61, 2, 56, 1),
    Sketcher.Constraint("Coincident", 62, 2, 63, 1),
    Sketcher.Constraint("Coincident", 63, 2, 64, 1),
    Sketcher.Constraint("Coincident", 64, 2, 65, 1),
    Sketcher.Constraint("Coincident", 65, 2, 66, 1),
    Sketcher.Constraint("Coincident", 66, 2, 67, 1),
    Sketcher.Constraint("Coincident", 67, 2, 68, 1),
    Sketcher.Constraint("Coincident", 68, 2, 69, 1),
    Sketcher.Constraint("Coincident", 69, 2, 70, 1),
    Sketcher.Constraint("Coincident", 70, 2, 71, 1),
    Sketcher.Constraint("Coincident", 71, 2, 62, 1),
    Sketcher.Constraint("Vertical", 0),
    Sketcher.Constraint("Horizontal", 1),
    Sketcher.Constraint("Vertical", 2),
    Sketcher.Constraint("Horizontal", 3),
    Sketcher.Constraint("Horizontal", 4),
    Sketcher.Constraint("Vertical", 5),
    Sketcher.Constraint("Horizontal", 6),
    Sketcher.Constraint("Vertical", 7),
    Sketcher.Constraint("Horizontal", 8),
    Sketcher.Constraint("Vertical", 9),
    Sketcher.Constraint("Horizontal", 10),
    Sketcher.Constraint("Vertical", 11),
    Sketcher.Constraint("Horizontal", 12),
    Sketcher.Constraint("Vertical", 13),
    Sketcher.Constraint("Horizontal", 14),
    Sketcher.Constraint("Vertical", 15),
    Sketcher.Constraint("Horizontal", 16),
    Sketcher.Constraint("Vertical", 17),
    Sketcher.Constraint("Horizontal", 18),
    Sketcher.Constraint("Vertical", 19),
    Sketcher.Constraint("Horizontal", 20),
    Sketcher.Constraint("Vertical", 21),
    Sketcher.Constraint("Horizontal", 22),
    Sketcher.Constraint("Vertical", 23),
    Sketcher.Constraint("Horizontal", 24),
    Sketcher.Constraint("Vertical", 25),
    Sketcher.Constraint("Horizontal", 26),
    Sketcher.Constraint("Vertical", 27),
    Sketcher.Constraint("Horizontal", 28),
    Sketcher.Constraint("Vertical", 29),
    Sketcher.Constraint("Horizontal", 30),
    Sketcher.Constraint("Vertical", 31),
    Sketcher.Constraint("Horizontal", 32),
    Sketcher.Constraint("Vertical", 33),
    Sketcher.Constraint("Horizontal", 34),
    Sketcher.Constraint("Vertical", 35),
    Sketcher.Constraint("Horizontal", 36),
    Sketcher.Constraint("Vertical", 37),
    Sketcher.Constraint("Horizontal", 38),
    Sketcher.Constraint("Vertical", 39),
    Sketcher.Constraint("Horizontal", 40),
    Sketcher.Constraint("Vertical", 41),
    Sketcher.Constraint("Horizontal", 42),
    Sketcher.Constraint("Vertical", 43),
    Sketcher.Constraint("Horizontal", 44),
    Sketcher.Constraint("Vertical", 45),
    Sketcher.Constraint("Vertical", 46),
    Sketcher.Constraint("Horizontal", 47),
    Sketcher.Constraint("Vertical", 48),
    Sketcher.Constraint("Horizontal", 49),
    Sketcher.Constraint("Vertical", 50),
    Sketcher.Constraint("Horizontal", 51),
    Sketcher.Constraint("Vertical", 52),
    Sketcher.Constraint("Horizontal", 53),
    Sketcher.Constraint("Vertical", 54),
    Sketcher.Constraint("Horizontal", 55),
    Sketcher.Constraint("Vertical", 56),
    Sketcher.Constraint("Horizontal", 57),
    Sketcher.Constraint("Vertical", 58),
    Sketcher.Constraint("Horizontal", 59),
    Sketcher.Constraint("Vertical", 60),
    Sketcher.Constraint("Horizontal", 61),
    Sketcher.Constraint("Horizontal", 62),
    Sketcher.Constraint("Vertical", 63),
    Sketcher.Constraint("Horizontal", 64),
    Sketcher.Constraint("Vertical", 65),
    Sketcher.Constraint("Horizontal", 66),
    Sketcher.Constraint("Vertical", 67),
    Sketcher.Constraint("Horizontal", 68),
    Sketcher.Constraint("Vertical", 69),
    Sketcher.Constraint("Horizontal", 70),
    Sketcher.Constraint("Vertical", 71),
    Sketcher.Constraint("Symmetric", 0, 2, 2, 2, -1, 1),
    Sketcher.Constraint("Symmetric", 4, 2, 22, 2, -1, 1),
    Sketcher.Constraint("Symmetric", 12, 2, 24, 2, -1, 1),
    Sketcher.Constraint("Symmetric", 15, 2, 31, 2, -1, 1),
    Sketcher.Constraint("Symmetric", 54, 2, 56, 2, -1, 1),
    Sketcher.Constraint("Symmetric", 40, 2, 64, 2, -1, 1),
    Sketcher.Constraint("Symmetric", 12, 2, 15, 2, -2),
    Sketcher.Constraint("Symmetric", 10, 2, 17, 2, -2),
    Sketcher.Constraint("Symmetric", 8, 2, 19, 2, -2),
    Sketcher.Constraint("Symmetric", 6, 2, 21, 2, -2),
    Sketcher.Constraint("Symmetric", 26, 2, 29, 2, -2),
    Sketcher.Constraint("Symmetric", 34, 2, 37, 2, -2),
    Sketcher.Constraint("Symmetric", 40, 2, 56, 2, -2),
    Sketcher.Constraint("Symmetric", 44, 2, 58, 2, -2),
    Sketcher.Constraint("Symmetric", 42, 2, 60, 2, -2),
    Sketcher.Constraint("Symmetric", 46, 2, 62, 2, -2),
    Sketcher.Constraint("Symmetric", 52, 2, 66, 2, -2),
    Sketcher.Constraint("Symmetric", 50, 2, 68, 2, -2),
    Sketcher.Constraint("Symmetric", 48, 2, 70, 2, -2),
    Sketcher.Constraint("Horizontal", 10, 2, 13, 2),
    Sketcher.Constraint("Horizontal", 38, 2, 40, 2),
    Sketcher.Constraint("Horizontal", 47, 2, 52, 2),
    Sketcher.Constraint("Vertical", 7, 2, 32, 2),
    Sketcher.Constraint("Vertical", 11, 2, 34, 2),
    Sketcher.Constraint("Vertical", 21, 2, 38, 2),
    Sketcher.Constraint("Vertical", 43, 2, 46, 2),
    Sketcher.Constraint("Vertical", 45, 2, 51, 2),
    Sketcher.Constraint("Equal", 18, 26),
    Sketcher.Constraint("Equal", 14, 34),
    Sketcher.Constraint("Equal", 38, 40),
    Sketcher.Constraint("Equal", 16, 44),
    Sketcher.Constraint("Equal", 20, 47),
    Sketcher.Constraint("Equal", 30, 49),
    Sketcher.Constraint("Equal", 24, 5),
    Sketcher.Constraint("Equal", 66, 9),
    Sketcher.Constraint("Equal", 19, 27),
    Sketcher.Constraint("Equal", 29, 43),
    Sketcher.Constraint("Equal", 31, 46),
    Sketcher.Constraint("Equal", 43, 48),
    Sketcher.Constraint("DistanceX", 1, 1, 1, 2, Q("4860 mm")),
    Sketcher.Constraint("DistanceX", 4, 2, 4, 1, Q("2400 mm")),
    Sketcher.Constraint("DistanceX", 6, 1, 6, 2, Q("1660 mm")),
    Sketcher.Constraint("DistanceX", 8, 1, 8, 2, Q("280 mm")),
    Sketcher.Constraint("DistanceX", 10, 2, 10, 1, Q("260 mm")),
    Sketcher.Constraint("DistanceY", 0, 1, 0, 2, Q("2440 mm")),
    Sketcher.Constraint("DistanceY", 7, 1, 7, 2, Q("890 mm")),
    Sketcher.Constraint("DistanceY", 25, 2, 25, 1, Q("550 mm")),
    Sketcher.Constraint("DistanceY", 33, 1, 33, 2, Q("590 mm")),
    Sketcher.Constraint("DistanceY", 35, 2, 35, 1, Q("570 mm")),
    Sketcher.Constraint("DistanceY", 41, 2, 41, 1, Q("470 mm")),
    Sketcher.Constraint("DistanceY", 50, 2, 50, 1, Q("510 mm")),
    Sketcher.Constraint("DistanceY", -1, 1, 33, 2, Q("740 mm")),
    Sketcher.Constraint("DistanceX", 40, 2, -1, 1, Q("1210 mm")),
])
pad2 = doc.addObject("PartDesign::Pad", "Pad001")
body.addObject(pad2)
pad2.Profile = sketch2
pad2.Length = 320
pad2.Reversed = True

sketch3 = doc.addObject("Sketcher::SketchObject", "Sketch002")
body.addObject(sketch3)
sketch3.AttachmentSupport = (doc.XZ_Plane, [""])
sketch3.MapMode = "FlatFace"
sketch3.AttachmentOffset = App.Placement(App.Vector(0, 0, -20), App.Rotation())
sketch3.addGeometry([
    Part.LineSegment(App.Vector(10, -330, 0), App.Vector(-10, -330, 0)),
    Part.LineSegment(App.Vector(-10, -330, 0), App.Vector(-10, -310, 0)),
    Part.LineSegment(App.Vector(-10, -310, 0), App.Vector(10, -310, 0)),
    Part.LineSegment(App.Vector(10, -310, 0), App.Vector(10, -330, 0)),
], False)
sketch3.addConstraint([
    Sketcher.Constraint("Coincident", 0, 2, 1, 1),
    Sketcher.Constraint("Coincident", 1, 2, 2, 1),
    Sketcher.Constraint("Coincident", 2, 2, 3, 1),
    Sketcher.Constraint("Coincident", 3, 2, 0, 1),
    Sketcher.Constraint("Horizontal", 0),
    Sketcher.Constraint("Vertical", 1),
    Sketcher.Constraint("Horizontal", 2),
    Sketcher.Constraint("Vertical", 3),
    Sketcher.Constraint("Equal", 2, 1),
    Sketcher.Constraint("DistanceX", 0, 2, 0, 1, Q("20 mm")),
    Sketcher.Constraint("DistanceX", 0, 2, -1, 1, Q("10 mm")),
    Sketcher.Constraint("DistanceY", 0, 2, -1, 1, Q("330 mm")),
])
pad3 = doc.addObject("PartDesign::Pad", "Pad002")
body.addObject(pad3)
pad3.Profile = sketch3
pad3.Length = 300
pad3.Reversed = True

doc.recompute()
